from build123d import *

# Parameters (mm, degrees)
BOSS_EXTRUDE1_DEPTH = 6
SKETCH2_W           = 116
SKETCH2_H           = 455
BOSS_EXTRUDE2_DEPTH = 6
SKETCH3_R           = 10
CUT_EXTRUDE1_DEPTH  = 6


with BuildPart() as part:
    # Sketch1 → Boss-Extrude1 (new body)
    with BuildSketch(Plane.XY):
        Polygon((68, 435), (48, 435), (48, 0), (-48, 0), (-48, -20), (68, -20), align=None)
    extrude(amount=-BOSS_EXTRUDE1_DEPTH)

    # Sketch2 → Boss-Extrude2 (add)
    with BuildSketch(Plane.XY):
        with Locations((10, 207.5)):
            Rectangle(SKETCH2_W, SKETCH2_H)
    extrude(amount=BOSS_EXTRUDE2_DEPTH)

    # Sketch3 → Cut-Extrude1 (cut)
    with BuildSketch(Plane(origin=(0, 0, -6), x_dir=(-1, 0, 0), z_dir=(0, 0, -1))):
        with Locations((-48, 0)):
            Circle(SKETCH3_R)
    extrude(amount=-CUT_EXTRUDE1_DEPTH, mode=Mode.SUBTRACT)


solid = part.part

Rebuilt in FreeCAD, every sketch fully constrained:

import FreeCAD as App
import Part
import Sketcher


def add_polygon(sketch, points):
    """Adds a closed chain of lines whose ends are joined by coincident constraints."""
    first, n = sketch.GeometryCount, len(points)
    for a, b in zip(points, points[1:] + points[:1]):
        sketch.addGeometry(Part.LineSegment(App.Vector(*a, 0), App.Vector(*b, 0)), False)
    for i in range(n):
        sketch.addConstraint(Sketcher.Constraint("Coincident", first + i, 2, first + (i + 1) % n, 1))

doc = App.newDocument("Part")
body = doc.addObject("PartDesign::Body", "Body")

# Sketch on XY plane
sketch1 = body.newObject("Sketcher::SketchObject", "Sketch")
sketch1.AttachmentSupport = (doc.getObject("XY_Plane"), [""])
sketch1.MapMode = "FlatFace"
add_polygon(sketch1, [(68, 435), (48, 435), (48, 0), (-48, 0), (-48, -20), (68, -20)])  # lines 0-5
sketch1.addConstraint(Sketcher.Constraint("Horizontal", 0))
sketch1.addConstraint(Sketcher.Constraint("Vertical", 1))
sketch1.addConstraint(Sketcher.Constraint("Horizontal", 2))
sketch1.addConstraint(Sketcher.Constraint("Vertical", 3))
sketch1.addConstraint(Sketcher.Constraint("Horizontal", 4))
sketch1.addConstraint(Sketcher.Constraint("Vertical", 5))
sketch1.addConstraint(Sketcher.Constraint("Symmetric", 1, 2, 2, 2, -1, 1))
sketch1.addConstraint(Sketcher.Constraint("Equal", 0, 3))
sketch1.addConstraint(Sketcher.Constraint("DistanceX", 0, 2, 0, 1, 20.0))
sketch1.addConstraint(Sketcher.Constraint("DistanceX", 2, 2, 2, 1, 96.0))
sketch1.addConstraint(Sketcher.Constraint("DistanceY", 1, 2, 1, 1, 435.0))
pad1 = body.newObject("PartDesign::Pad", "Pad")
pad1.Profile = sketch1
pad1.Length = 6
pad1.Reversed = True

# Sketch on XY plane
sketch2 = body.newObject("Sketcher::SketchObject", "Sketch001")
sketch2.AttachmentSupport = (doc.getObject("XY_Plane"), [""])
sketch2.MapMode = "FlatFace"
add_polygon(sketch2, [(-48, 435), (-48, -20), (68, -20), (68, 435)])  # lines 0-3
sketch2.addConstraint(Sketcher.Constraint("Vertical", 0))
sketch2.addConstraint(Sketcher.Constraint("Horizontal", 1))
sketch2.addConstraint(Sketcher.Constraint("Vertical", 2))
sketch2.addConstraint(Sketcher.Constraint("Horizontal", 3))
sketch2.addConstraint(Sketcher.Constraint("DistanceX", 1, 1, 1, 2, 116.0))
sketch2.addConstraint(Sketcher.Constraint("DistanceY", 0, 2, 0, 1, 455.0))
sketch2.addConstraint(Sketcher.Constraint("DistanceX", 0, 2, -1, 1, 48.0))
sketch2.addConstraint(Sketcher.Constraint("DistanceY", 0, 2, -1, 1, 20.0))
pad2 = body.newObject("PartDesign::Pad", "Pad001")
pad2.Profile = sketch2
pad2.Length = 6

# Sketch on XY plane
sketch3 = body.newObject("Sketcher::SketchObject", "Sketch002")
sketch3.AttachmentSupport = (doc.getObject("XY_Plane"), [""])
sketch3.MapMode = "FlatFace"
sketch3.AttachmentOffset = App.Placement(App.Vector(0, 0, -6), App.Rotation())
sketch3.addGeometry(Part.Circle(App.Vector(48, 0, 0), App.Vector(0, 0, 1), 10), False)
sketch3.addConstraint(Sketcher.Constraint("PointOnObject", 0, 3, -1))
sketch3.addConstraint(Sketcher.Constraint("Diameter", 0, 20.0))
sketch3.addConstraint(Sketcher.Constraint("DistanceX", -1, 1, 0, 3, 48.0))
pocket1 = body.newObject("PartDesign::Pocket", "Pocket")
pocket1.Profile = sketch3
pocket1.Length = 6
pocket1.Reversed = True

doc.recompute()
